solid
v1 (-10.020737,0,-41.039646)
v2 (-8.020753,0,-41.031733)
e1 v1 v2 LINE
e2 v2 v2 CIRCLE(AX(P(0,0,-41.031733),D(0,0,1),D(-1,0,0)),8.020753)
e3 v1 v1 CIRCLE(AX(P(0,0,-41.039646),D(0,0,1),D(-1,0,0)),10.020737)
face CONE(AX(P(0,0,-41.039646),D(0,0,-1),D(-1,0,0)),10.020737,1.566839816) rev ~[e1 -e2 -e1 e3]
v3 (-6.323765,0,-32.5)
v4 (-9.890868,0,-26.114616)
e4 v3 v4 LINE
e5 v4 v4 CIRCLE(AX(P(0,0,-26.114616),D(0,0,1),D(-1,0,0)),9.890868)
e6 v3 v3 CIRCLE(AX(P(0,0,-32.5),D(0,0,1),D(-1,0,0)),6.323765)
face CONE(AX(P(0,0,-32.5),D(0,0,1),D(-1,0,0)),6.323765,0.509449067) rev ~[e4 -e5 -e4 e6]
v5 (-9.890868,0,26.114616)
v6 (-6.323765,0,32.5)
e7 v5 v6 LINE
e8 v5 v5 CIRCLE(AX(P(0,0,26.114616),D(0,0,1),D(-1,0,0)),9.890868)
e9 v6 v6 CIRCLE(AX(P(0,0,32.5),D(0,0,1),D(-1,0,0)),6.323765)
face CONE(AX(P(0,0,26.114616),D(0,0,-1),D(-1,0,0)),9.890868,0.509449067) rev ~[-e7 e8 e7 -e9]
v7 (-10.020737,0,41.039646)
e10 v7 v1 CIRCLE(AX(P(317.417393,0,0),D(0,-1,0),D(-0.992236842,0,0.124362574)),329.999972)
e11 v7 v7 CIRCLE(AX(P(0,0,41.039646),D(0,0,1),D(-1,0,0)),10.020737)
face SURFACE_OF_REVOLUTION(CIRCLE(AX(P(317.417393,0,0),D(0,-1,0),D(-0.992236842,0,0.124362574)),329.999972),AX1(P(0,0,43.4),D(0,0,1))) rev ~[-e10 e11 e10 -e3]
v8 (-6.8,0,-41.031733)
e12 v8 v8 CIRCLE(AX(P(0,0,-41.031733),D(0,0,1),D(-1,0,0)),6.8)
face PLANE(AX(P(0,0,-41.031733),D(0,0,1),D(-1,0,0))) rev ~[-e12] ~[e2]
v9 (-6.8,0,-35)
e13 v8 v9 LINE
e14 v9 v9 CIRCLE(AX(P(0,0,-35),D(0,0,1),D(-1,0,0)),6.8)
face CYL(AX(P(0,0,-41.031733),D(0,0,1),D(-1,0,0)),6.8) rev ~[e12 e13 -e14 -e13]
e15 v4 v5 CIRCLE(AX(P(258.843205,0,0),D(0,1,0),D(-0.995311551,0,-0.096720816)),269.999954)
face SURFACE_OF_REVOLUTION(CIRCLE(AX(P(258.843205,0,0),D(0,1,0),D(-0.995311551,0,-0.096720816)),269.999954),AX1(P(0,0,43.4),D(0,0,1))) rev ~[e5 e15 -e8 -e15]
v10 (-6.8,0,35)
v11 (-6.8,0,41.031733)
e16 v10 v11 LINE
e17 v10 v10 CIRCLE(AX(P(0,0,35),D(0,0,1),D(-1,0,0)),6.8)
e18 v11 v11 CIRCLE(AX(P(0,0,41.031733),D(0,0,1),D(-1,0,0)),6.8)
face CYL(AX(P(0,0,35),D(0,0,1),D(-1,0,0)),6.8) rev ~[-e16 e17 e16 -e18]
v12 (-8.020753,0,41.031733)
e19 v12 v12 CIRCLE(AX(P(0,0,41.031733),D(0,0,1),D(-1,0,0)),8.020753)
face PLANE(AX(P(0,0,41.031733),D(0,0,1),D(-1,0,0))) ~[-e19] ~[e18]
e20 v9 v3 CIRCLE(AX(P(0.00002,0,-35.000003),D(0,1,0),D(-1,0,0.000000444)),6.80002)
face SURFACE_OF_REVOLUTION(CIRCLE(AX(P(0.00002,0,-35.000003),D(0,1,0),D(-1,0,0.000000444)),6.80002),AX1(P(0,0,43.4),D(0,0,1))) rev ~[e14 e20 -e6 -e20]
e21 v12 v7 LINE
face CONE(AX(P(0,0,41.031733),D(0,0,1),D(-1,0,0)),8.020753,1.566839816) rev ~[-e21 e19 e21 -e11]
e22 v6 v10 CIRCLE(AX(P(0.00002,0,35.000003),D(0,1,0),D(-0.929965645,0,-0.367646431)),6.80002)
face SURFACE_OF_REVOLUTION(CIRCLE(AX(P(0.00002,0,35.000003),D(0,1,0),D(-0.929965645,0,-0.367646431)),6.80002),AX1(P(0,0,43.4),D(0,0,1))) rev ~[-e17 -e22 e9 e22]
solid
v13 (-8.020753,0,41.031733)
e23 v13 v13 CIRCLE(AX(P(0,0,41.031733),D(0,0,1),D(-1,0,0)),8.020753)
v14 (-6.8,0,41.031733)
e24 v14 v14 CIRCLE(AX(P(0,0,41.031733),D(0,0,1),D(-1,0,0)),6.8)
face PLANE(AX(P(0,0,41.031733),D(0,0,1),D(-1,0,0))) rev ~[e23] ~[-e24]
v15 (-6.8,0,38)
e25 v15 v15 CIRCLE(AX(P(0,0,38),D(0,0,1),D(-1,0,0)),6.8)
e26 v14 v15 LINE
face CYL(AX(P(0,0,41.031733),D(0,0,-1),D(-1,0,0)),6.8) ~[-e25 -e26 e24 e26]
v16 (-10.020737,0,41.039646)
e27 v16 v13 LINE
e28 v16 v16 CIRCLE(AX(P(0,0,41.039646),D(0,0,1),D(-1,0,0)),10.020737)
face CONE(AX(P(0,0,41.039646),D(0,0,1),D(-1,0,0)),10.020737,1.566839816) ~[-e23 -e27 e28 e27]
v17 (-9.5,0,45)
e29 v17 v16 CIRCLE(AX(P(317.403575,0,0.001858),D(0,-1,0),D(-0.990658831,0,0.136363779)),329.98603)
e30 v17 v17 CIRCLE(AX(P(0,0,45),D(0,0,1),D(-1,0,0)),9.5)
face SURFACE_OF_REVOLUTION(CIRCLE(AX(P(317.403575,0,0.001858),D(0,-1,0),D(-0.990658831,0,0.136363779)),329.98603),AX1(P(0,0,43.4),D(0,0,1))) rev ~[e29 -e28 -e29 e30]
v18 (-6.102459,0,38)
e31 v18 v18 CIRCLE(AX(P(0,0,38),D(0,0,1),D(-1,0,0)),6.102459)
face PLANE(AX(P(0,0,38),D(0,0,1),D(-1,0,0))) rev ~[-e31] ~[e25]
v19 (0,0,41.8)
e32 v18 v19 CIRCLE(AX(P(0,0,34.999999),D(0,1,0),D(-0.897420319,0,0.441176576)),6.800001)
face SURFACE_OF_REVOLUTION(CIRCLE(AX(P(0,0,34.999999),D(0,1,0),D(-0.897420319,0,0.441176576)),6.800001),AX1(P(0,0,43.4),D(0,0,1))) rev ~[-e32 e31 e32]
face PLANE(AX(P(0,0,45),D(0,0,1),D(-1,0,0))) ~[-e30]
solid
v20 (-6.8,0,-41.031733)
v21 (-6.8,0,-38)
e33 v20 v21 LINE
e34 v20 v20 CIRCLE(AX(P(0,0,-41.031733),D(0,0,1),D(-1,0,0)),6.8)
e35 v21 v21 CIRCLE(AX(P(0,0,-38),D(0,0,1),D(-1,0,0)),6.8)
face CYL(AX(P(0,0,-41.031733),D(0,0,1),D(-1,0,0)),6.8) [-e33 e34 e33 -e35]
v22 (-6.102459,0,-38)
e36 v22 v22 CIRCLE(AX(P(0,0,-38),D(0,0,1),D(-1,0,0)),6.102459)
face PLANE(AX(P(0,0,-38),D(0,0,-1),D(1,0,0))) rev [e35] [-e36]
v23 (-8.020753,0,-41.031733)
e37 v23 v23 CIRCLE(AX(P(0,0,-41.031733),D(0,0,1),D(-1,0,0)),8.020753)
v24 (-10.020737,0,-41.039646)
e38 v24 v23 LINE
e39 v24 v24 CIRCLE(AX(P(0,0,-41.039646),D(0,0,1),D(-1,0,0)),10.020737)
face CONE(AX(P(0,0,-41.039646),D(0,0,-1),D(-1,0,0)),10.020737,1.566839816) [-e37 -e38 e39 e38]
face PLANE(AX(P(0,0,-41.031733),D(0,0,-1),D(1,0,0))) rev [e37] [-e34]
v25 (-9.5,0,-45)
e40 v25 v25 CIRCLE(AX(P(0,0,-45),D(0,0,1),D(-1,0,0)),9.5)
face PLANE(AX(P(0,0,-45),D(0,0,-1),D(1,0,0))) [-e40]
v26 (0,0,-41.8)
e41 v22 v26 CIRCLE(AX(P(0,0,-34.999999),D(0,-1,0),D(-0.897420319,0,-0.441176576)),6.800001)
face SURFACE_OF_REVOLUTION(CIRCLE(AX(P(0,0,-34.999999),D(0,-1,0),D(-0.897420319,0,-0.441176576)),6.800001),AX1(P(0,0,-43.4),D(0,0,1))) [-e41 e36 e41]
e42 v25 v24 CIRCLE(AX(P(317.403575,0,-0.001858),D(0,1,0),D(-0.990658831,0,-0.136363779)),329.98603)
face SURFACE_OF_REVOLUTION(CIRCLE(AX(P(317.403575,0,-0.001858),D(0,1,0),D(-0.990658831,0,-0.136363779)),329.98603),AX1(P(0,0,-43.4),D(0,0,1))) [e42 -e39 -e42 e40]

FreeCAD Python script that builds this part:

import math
import FreeCAD as App
import Part
import Sketcher
from FreeCAD import Vector

doc = App.newDocument("Part")
body = doc.addObject("PartDesign::Body", "Body")

sketch1 = doc.addObject("Sketcher::SketchObject", "Sketch")
body.addObject(sketch1)
sketch1.AttachmentSupport = (doc.XZ_Plane, [""])
sketch1.MapMode = "FlatFace"
sketch1.addGeometry([
    Part.LineSegment(Vector(-8, 41, 0), Vector(-10, 41, 0)),
    Part.ArcOfCircle(Part.Circle(Vector(317.4, 0, 0), Vector(0, 0, 1), 330), math.radians(172.86), math.radians(187.14)),
    Part.LineSegment(Vector(-10, -41, 0), Vector(-8, -41, 0)),
    Part.LineSegment(Vector(-8, -41, 0), Vector(-6.8, -41, 0)),
    Part.LineSegment(Vector(-6.8, -41, 0), Vector(-6.8, -35, 0)),
    Part.ArcOfCircle(Part.Circle(Vector(0, -35, 0), Vector(0, 0, 1), 6.8), math.radians(158), math.radians(180)),
    Part.LineSegment(Vector(-6.3, -32.5, 0), Vector(-9.9, -26.1, 0)),
    Part.ArcOfCircle(Part.Circle(Vector(258.8, 0, 0), Vector(0, 0, 1), 270), math.radians(174.45), math.radians(185.55)),
    Part.LineSegment(Vector(-9.9, 26.1, 0), Vector(-6.3, 32.5, 0)),
    Part.ArcOfCircle(Part.Circle(Vector(0, 35, 0), Vector(0, 0, 1), 6.8), math.radians(-180), math.radians(-158)),
    Part.LineSegment(Vector(-6.8, 35, 0), Vector(-6.8, 41, 0)),
    Part.LineSegment(Vector(-6.8, 41, 0), Vector(-8, 41, 0)),
], False)
sketch1.addConstraint([
    Sketcher.Constraint("Coincident", 0, 2, 1, 1),
    Sketcher.Constraint("Coincident", 1, 2, 2, 1),
    Sketcher.Constraint("Coincident", 2, 2, 3, 1),
    Sketcher.Constraint("Coincident", 3, 2, 4, 1),
    Sketcher.Constraint("Tangent", 4, 2, 5, 2),
    Sketcher.Constraint("Coincident", 5, 1, 6, 1),
    Sketcher.Constraint("Coincident", 6, 2, 7, 2),
    Sketcher.Constraint("Coincident", 7, 1, 8, 1),
    Sketcher.Constraint("Coincident", 8, 2, 9, 2),
    Sketcher.Constraint("Tangent", 9, 1, 10, 1),
    Sketcher.Constraint("Coincident", 10, 2, 11, 1),
    Sketcher.Constraint("Coincident", 11, 2, 0, 1),
    Sketcher.Constraint("Horizontal", 3),
    Sketcher.Constraint("Vertical", 4),
    Sketcher.Constraint("Vertical", 10),
    Sketcher.Constraint("Horizontal", 11),
    Sketcher.Constraint("Equal", 5, 9),
    Sketcher.Constraint("Symmetric", 5, 3, 9, 3, -1),
    Sketcher.Constraint("Symmetric", 0, 2, 1, 2, -1),
    Sketcher.Constraint("Symmetric", 6, 2, 7, 1, -1),
    Sketcher.Constraint("Symmetric", 2, 2, 11, 2, -1),
    Sketcher.Constraint("Vertical", 5, 1, 8, 2),
    Sketcher.Constraint("Distance", 0, 2.0),
    Sketcher.Constraint("DistanceY", 4, 2, -1, 1, 35.0),
    Sketcher.Constraint("DistanceY", 5, 1, 8, 2, 65.0),
    Sketcher.Constraint("DistanceX", 3, 2, -1, 1, 6.8),
    Sketcher.Constraint("Radius", 5, 6.80002),
    Sketcher.Constraint("Radius", 1, 329.999972),
    Sketcher.Constraint("Radius", 7, 269.999954),
    Sketcher.Constraint("Distance", 6, 7.314188),
    Sketcher.Constraint("DistanceX", 3, 1, 3, 2, 1.220753),
    Sketcher.Constraint("DistanceY", 4, 1, 4, 2, 6.031733),
    Sketcher.Constraint("DistanceX", 7, 1, -1, 1, 9.890868),
    Sketcher.Constraint("DistanceX", 7, 3, 1, 3, 58.574188),
])
revolution = doc.addObject("PartDesign::Revolution", "Revolution")
body.addObject(revolution)
revolution.Profile = sketch1
revolution.ReferenceAxis = (sketch1, ["V_Axis"])
revolution.Angle = 360
body2 = doc.addObject("PartDesign::Body", "Body001")

sketch2 = doc.addObject("Sketcher::SketchObject", "Sketch001")
body2.addObject(sketch2)
sketch2.AttachmentSupport = (doc.getObject("XZ_Plane001"), [""])
sketch2.MapMode = "FlatFace"
sketch2.addGeometry([
    Part.LineSegment(Vector(0, 41.8, 0), Vector(0, 45, 0)),
    Part.LineSegment(Vector(0, 45, 0), Vector(-9.5, 45, 0)),
    Part.ArcOfCircle(Part.Circle(Vector(317.4, 0, 0), Vector(0, 0, 1), 330), math.radians(172.16), math.radians(172.86)),
    Part.LineSegment(Vector(-10, 41, 0), Vector(-8, 41, 0)),
    Part.LineSegment(Vector(-8, 41, 0), Vector(-6.8, 41, 0)),
    Part.LineSegment(Vector(-6.8, 41, 0), Vector(-6.8, 38, 0)),
    Part.LineSegment(Vector(-6.8, 38, 0), Vector(-6.1, 38, 0)),
    Part.ArcOfCircle(Part.Circle(Vector(0, 35, 0), Vector(0, 0, 1), 6.8), math.radians(90), math.radians(154)),
], False)
sketch2.addConstraint([
    Sketcher.Constraint("Coincident", 0, 2, 1, 1),
    Sketcher.Constraint("Coincident", 1, 2, 2, 1),
    Sketcher.Constraint("Coincident", 2, 2, 3, 1),
    Sketcher.Constraint("Coincident", 3, 2, 4, 1),
    Sketcher.Constraint("Coincident", 4, 2, 5, 1),
    Sketcher.Constraint("Coincident", 5, 2, 6, 1),
    Sketcher.Constraint("Coincident", 6, 2, 7, 2),
    Sketcher.Constraint("Coincident", 7, 1, 0, 1),
    Sketcher.Constraint("Vertical", 0),
    Sketcher.Constraint("Horizontal", 1),
    Sketcher.Constraint("Horizontal", 4),
    Sketcher.Constraint("Vertical", 5),
    Sketcher.Constraint("Horizontal", 6),
    Sketcher.Constraint("PointOnObject", 7, 3, -2),
    Sketcher.Constraint("PointOnObject", 0, 2, -2),
    Sketcher.Constraint("Radius", 7, 6.800001),
    Sketcher.Constraint("Distance", 3, 2.0),
    Sketcher.Constraint("DistanceX", 1, 2, 1, 1, 9.5),
    Sketcher.Constraint("DistanceY", 0, 1, 0, 2, 3.2),
    Sketcher.Constraint("DistanceY", -1, 1, 7, 3, 34.999999),
    Sketcher.Constraint("DistanceY", -1, 1, 5, 2, 38.0),
    Sketcher.Constraint("DistanceX", 4, 2, -1, 1, 6.8),
    Sketcher.Constraint("Radius", 2, 329.98603),
    Sketcher.Constraint("DistanceX", 4, 1, 4, 2, 1.220753),
    Sketcher.Constraint("DistanceY", 5, 2, 5, 1, 3.031733),
    Sketcher.Constraint("DistanceY", 2, 3, 7, 3, 34.998141),
])
revolution2 = doc.addObject("PartDesign::Revolution", "Revolution001")
body2.addObject(revolution2)
revolution2.Profile = sketch2
revolution2.ReferenceAxis = (sketch2, ["V_Axis"])
revolution2.Angle = 360
body3 = doc.addObject("PartDesign::Body", "Body002")
doc.recompute()

mirroring = doc.addObject("Part::Mirroring", "Mirroring")
mirroring.Source = body2
mirroring.Base = Vector(0, 0, 0)
mirroring.Normal = Vector(0, 0, 1)
body3.BaseFeature = mirroring
doc.recompute()
mirroring.Visibility = False

doc.recompute()
